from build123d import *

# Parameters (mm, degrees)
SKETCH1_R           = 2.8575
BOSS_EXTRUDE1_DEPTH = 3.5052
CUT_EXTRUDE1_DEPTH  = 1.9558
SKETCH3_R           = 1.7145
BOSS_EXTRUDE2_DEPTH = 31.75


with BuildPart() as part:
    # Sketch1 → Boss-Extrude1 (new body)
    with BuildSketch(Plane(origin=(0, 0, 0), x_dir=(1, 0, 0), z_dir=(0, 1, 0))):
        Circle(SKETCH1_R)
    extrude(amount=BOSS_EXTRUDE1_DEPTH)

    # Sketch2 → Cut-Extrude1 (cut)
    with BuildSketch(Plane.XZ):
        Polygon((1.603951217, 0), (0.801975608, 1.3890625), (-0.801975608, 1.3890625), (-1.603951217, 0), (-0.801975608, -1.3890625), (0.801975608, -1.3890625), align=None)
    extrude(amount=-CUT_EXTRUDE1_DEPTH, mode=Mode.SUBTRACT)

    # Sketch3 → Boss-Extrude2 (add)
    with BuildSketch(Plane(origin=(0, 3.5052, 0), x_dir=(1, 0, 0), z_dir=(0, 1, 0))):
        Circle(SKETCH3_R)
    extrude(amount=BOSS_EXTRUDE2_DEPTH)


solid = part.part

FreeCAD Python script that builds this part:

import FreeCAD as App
import Part
import Sketcher
Q = App.Units.Quantity

doc = App.newDocument("Part")
body = doc.addObject("PartDesign::Body", "Body")

# Sketch on XZ plane
sketch1 = doc.addObject("Sketcher::SketchObject", "Sketch")
body.addObject(sketch1)
sketch1.AttachmentSupport = (doc.XZ_Plane, [""])
sketch1.MapMode = "FlatFace"
sketch1.addGeometry(Part.Circle(App.Vector(0, 0, 0), App.Vector(0, 0, 1), 2.8575), False)
sketch1.addConstraint([
    Sketcher.Constraint("Coincident", 0, 3, -1, 1),
    Sketcher.Constraint("Diameter", 0, Q("0.225 in")),
])
pad1 = doc.addObject("PartDesign::Pad", "Pad")
body.addObject(pad1)
pad1.Profile = sketch1
pad1.Length = Q("0.138 in")
pad1.Reversed = True

# Sketch on XZ plane
sketch2 = doc.addObject("Sketcher::SketchObject", "Sketch001")
body.addObject(sketch2)
sketch2.AttachmentSupport = (doc.XZ_Plane, [""])
sketch2.MapMode = "FlatFace"
sketch2.addGeometry([
    Part.LineSegment(App.Vector(1.603951, 0, 0), App.Vector(0.801976, 1.389063, 0)),  # 0
    Part.LineSegment(App.Vector(0.801976, 1.389063, 0), App.Vector(-0.801976, 1.389063, 0)),  # 1
    Part.LineSegment(App.Vector(-0.801976, 1.389063, 0), App.Vector(-1.603951, 0, 0)),  # 2
    Part.LineSegment(App.Vector(-1.603951, 0, 0), App.Vector(-0.801976, -1.389063, 0)),  # 3
    Part.LineSegment(App.Vector(-0.801976, -1.389063, 0), App.Vector(0.801976, -1.389063, 0)),  # 4
    Part.LineSegment(App.Vector(0.801976, -1.389063, 0), App.Vector(1.603951, 0, 0)),  # 5
], False)
sketch2.addConstraint([
    Sketcher.Constraint("Coincident", 0, 2, 1, 1),
    Sketcher.Constraint("Coincident", 1, 2, 2, 1),
    Sketcher.Constraint("Coincident", 2, 2, 3, 1),
    Sketcher.Constraint("Coincident", 3, 2, 4, 1),
    Sketcher.Constraint("Coincident", 4, 2, 5, 1),
    Sketcher.Constraint("Coincident", 5, 2, 0, 1),
    Sketcher.Constraint("Horizontal", 1),
    Sketcher.Constraint("Horizontal", 4),
    Sketcher.Constraint("Symmetric", 0, 2, 3, 2, -1, 1),
    Sketcher.Constraint("Symmetric", 2, 2, 5, 2, -1, 1),
    Sketcher.Constraint("PointOnObject", 2, 2, -1),
    Sketcher.Constraint("Parallel", 2, 5),
    Sketcher.Constraint("Vertical", 1, 2, 3, 2),
    Sketcher.Constraint("Angle", 0, Q("120 deg")),
    Sketcher.Constraint("DistanceY", 3, 2, 1, 2, Q("0.109375 in")),
    Sketcher.Constraint("DistanceX", 1, 2, 1, 1, Q("1.603951 mm")),
])
pocket1 = doc.addObject("PartDesign::Pocket", "Pocket")
body.addObject(pocket1)
pocket1.Profile = sketch2
pocket1.Length = Q("0.077 in")

# Sketch on XZ plane
sketch3 = doc.addObject("Sketcher::SketchObject", "Sketch002")
body.addObject(sketch3)
sketch3.AttachmentSupport = (doc.XZ_Plane, [""])
sketch3.MapMode = "FlatFace"
sketch3.AttachmentOffset = App.Placement(App.Vector(0, 0, -0.138 * 25.4), App.Rotation())
sketch3.addGeometry(Part.Circle(App.Vector(0, 0, 0), App.Vector(0, 0, 1), 1.7145), False)
sketch3.addConstraint([
    Sketcher.Constraint("Coincident", 0, 3, -1, 1),
    Sketcher.Constraint("Diameter", 0, Q("0.135 in")),
])
pad2 = doc.addObject("PartDesign::Pad", "Pad001")
body.addObject(pad2)
pad2.Profile = sketch3
pad2.Length = Q("1.25 in")
pad2.Reversed = True

doc.recompute()
